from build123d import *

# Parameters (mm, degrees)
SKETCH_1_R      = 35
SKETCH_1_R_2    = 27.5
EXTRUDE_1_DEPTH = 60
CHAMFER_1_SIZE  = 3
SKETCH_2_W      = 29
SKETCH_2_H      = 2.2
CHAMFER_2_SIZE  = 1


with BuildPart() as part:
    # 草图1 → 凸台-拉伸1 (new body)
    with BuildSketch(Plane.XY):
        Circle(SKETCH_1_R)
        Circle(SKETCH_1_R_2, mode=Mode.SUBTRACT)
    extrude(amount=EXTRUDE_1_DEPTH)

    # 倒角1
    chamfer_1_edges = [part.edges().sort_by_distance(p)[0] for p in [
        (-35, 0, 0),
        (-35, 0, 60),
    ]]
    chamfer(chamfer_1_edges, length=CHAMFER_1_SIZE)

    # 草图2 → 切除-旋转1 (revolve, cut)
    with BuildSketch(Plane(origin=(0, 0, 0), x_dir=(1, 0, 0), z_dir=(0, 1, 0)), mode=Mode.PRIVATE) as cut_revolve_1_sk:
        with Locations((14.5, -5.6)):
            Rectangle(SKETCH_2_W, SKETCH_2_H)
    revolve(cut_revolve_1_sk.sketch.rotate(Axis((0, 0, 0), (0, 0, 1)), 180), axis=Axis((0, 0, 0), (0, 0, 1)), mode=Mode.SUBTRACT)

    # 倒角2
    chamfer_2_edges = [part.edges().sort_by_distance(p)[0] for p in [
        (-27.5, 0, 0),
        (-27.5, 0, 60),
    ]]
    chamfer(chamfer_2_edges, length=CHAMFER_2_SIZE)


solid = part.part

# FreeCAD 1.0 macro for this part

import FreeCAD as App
import Part
import Sketcher

V = App.Vector


def edges_at(feature, points):
    """Names of the edges that pass closest to the given points."""
    edges = feature.Shape.Edges
    near = lambda p: min(range(len(edges)), key=lambda i: edges[i].distToShape(Part.Vertex(*p))[0])
    return sorted({f"Edge{near(p) + 1}" for p in points})


def add_polygon(sketch, points):
    """Adds a closed chain of lines whose ends are joined by coincident constraints."""
    first, n = sketch.GeometryCount, len(points)
    for a, b in zip(points, points[1:] + points[:1]):
        sketch.addGeometry(Part.LineSegment(App.Vector(*a, 0), App.Vector(*b, 0)), False)
    for i in range(n):
        sketch.addConstraint(Sketcher.Constraint("Coincident", first + i, 2, first + (i + 1) % n, 1))

doc = App.newDocument("Part")
params = doc.addObject("Spreadsheet::Sheet", "Params")
for row, (alias, value) in enumerate([
    ("sketch1_diameter", "70 mm"),
    ("sketch1_diameter2", "55 mm"),
    ("pad1_length", "60 mm"),
    ("chamfer_size", "3 mm"),
    ("sketch2_width", "29 mm"),
    ("sketch2_height", "2.2 mm"),
    ("groove_angle", "360 deg"),
    ("chamfer2_size", "1 mm"),
], start=1):
    params.set(f"A{row}", alias)
    params.set(f"B{row}", "=" + value)
    params.setAlias(f"B{row}", alias)

body = doc.addObject("PartDesign::Body", "Body")

# Sketch on XY plane
sketch1 = doc.addObject("Sketcher::SketchObject", "Sketch")
body.addObject(sketch1)
sketch1.AttachmentSupport = (doc.XY_Plane, [""])
sketch1.MapMode = "FlatFace"
sketch1.addGeometry(Part.Circle(V(0, 0, 0), V(0, 0, 1), 35), False)
sketch1.addGeometry(Part.Circle(V(0, 0, 0), V(0, 0, 1), 28), False)
sketch1.addConstraint(Sketcher.Constraint("Coincident", 0, 3, -1, 1))
sketch1.addConstraint(Sketcher.Constraint("Coincident", 1, 3, -1, 1))
sketch1.addConstraint(Sketcher.Constraint("Diameter", 0, 70.0))
sketch1.addConstraint(Sketcher.Constraint("Diameter", 1, 55.0))
sketch1.setExpression("Constraints[2]", "Params.sketch1_diameter")
sketch1.setExpression("Constraints[3]", "Params.sketch1_diameter2")
pad1 = doc.addObject("PartDesign::Pad", "Pad")
body.addObject(pad1)
pad1.Profile = sketch1
pad1.setExpression("Length", "Params.pad1_length")
doc.recompute()

chamfer = doc.addObject("PartDesign::Chamfer", "Chamfer")
body.addObject(chamfer)
chamfer.Base = (pad1, edges_at(pad1, [(-35, 0, 0), (-35, 0, 60)]))
chamfer.setExpression("Size", "Params.chamfer_size")

# Sketch on XZ plane
sketch2 = doc.addObject("Sketcher::SketchObject", "Sketch001")
body.addObject(sketch2)
sketch2.AttachmentSupport = (doc.XZ_Plane, [""])
sketch2.MapMode = "FlatFace"
add_polygon(sketch2, [(0, 4.5), (0, 6.7), (29, 6.7), (29, 4.5)])  # lines 0-3
sketch2.addConstraint(Sketcher.Constraint("Vertical", 0))
sketch2.addConstraint(Sketcher.Constraint("Horizontal", 1))
sketch2.addConstraint(Sketcher.Constraint("Vertical", 2))
sketch2.addConstraint(Sketcher.Constraint("Horizontal", 3))
sketch2.addConstraint(Sketcher.Constraint("PointOnObject", 0, 2, -2))
sketch2.addConstraint(Sketcher.Constraint("DistanceX", 1, 1, 1, 2, 29.0))
sketch2.addConstraint(Sketcher.Constraint("DistanceY", 0, 1, 0, 2, 2.2))
sketch2.addConstraint(Sketcher.Constraint("DistanceY", -1, 1, 0, 2, 6.7))
sketch2.setExpression("Constraints[9]", "Params.sketch2_width")
sketch2.setExpression("Constraints[10]", "Params.sketch2_height")
groove = doc.addObject("PartDesign::Groove", "Groove")
body.addObject(groove)
groove.Profile = sketch2
groove.ReferenceAxis = (sketch2, ["V_Axis"])
groove.setExpression("Angle", "Params.groove_angle")
doc.recompute()

chamfer2 = doc.addObject("PartDesign::Chamfer", "Chamfer001")
body.addObject(chamfer2)
chamfer2.Base = (groove, edges_at(groove, [(-27.5, 0, 0), (-27.5, 0, 60)]))
chamfer2.setExpression("Size", "Params.chamfer2_size")

doc.recompute()
